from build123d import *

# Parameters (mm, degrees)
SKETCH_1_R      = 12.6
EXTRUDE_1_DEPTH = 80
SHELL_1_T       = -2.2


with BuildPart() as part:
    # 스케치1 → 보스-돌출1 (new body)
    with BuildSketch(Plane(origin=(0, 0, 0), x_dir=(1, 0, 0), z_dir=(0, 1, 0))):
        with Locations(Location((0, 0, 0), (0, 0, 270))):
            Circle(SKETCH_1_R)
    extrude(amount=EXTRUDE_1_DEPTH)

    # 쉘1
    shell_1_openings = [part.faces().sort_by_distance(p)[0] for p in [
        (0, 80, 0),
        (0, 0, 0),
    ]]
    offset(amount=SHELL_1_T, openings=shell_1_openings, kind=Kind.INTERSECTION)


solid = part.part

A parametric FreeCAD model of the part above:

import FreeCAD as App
import Part
import Sketcher

V = App.Vector


def faces_at(feature, points):
    """Names of the faces that lie closest to the given points."""
    faces = feature.Shape.Faces
    near = lambda p: min(range(len(faces)), key=lambda i: faces[i].distToShape(Part.Vertex(*p))[0])
    return sorted({f"Face{near(p) + 1}" for p in points})

doc = App.newDocument("Part")
body = doc.addObject("PartDesign::Body", "Body")

# Sketch on XZ plane
sketch1 = body.newObject("Sketcher::SketchObject", "Sketch")
sketch1.AttachmentSupport = (doc.getObject("XZ_Plane"), [""])
sketch1.MapMode = "FlatFace"
sketch1.addGeometry(Part.Circle(V(0, 0, 0), V(0, 0, 1), 12.6), False)
sketch1.addConstraint([
    Sketcher.Constraint("Coincident", 0, 3, -1, 1),
    Sketcher.Constraint("Diameter", 0, 25.2),
])
pad1 = body.newObject("PartDesign::Pad", "Pad")
pad1.Profile = sketch1
pad1.Length = 80
pad1.Reversed = True
doc.recompute()

thickness = body.newObject("PartDesign::Thickness", "Thickness")
thickness.Base = (pad1, faces_at(pad1, [(0, 80, 0), (0, 0, 0)]))
thickness.Value = 2.2
thickness.Reversed = True
thickness.Join = "Intersection"

doc.recompute()
